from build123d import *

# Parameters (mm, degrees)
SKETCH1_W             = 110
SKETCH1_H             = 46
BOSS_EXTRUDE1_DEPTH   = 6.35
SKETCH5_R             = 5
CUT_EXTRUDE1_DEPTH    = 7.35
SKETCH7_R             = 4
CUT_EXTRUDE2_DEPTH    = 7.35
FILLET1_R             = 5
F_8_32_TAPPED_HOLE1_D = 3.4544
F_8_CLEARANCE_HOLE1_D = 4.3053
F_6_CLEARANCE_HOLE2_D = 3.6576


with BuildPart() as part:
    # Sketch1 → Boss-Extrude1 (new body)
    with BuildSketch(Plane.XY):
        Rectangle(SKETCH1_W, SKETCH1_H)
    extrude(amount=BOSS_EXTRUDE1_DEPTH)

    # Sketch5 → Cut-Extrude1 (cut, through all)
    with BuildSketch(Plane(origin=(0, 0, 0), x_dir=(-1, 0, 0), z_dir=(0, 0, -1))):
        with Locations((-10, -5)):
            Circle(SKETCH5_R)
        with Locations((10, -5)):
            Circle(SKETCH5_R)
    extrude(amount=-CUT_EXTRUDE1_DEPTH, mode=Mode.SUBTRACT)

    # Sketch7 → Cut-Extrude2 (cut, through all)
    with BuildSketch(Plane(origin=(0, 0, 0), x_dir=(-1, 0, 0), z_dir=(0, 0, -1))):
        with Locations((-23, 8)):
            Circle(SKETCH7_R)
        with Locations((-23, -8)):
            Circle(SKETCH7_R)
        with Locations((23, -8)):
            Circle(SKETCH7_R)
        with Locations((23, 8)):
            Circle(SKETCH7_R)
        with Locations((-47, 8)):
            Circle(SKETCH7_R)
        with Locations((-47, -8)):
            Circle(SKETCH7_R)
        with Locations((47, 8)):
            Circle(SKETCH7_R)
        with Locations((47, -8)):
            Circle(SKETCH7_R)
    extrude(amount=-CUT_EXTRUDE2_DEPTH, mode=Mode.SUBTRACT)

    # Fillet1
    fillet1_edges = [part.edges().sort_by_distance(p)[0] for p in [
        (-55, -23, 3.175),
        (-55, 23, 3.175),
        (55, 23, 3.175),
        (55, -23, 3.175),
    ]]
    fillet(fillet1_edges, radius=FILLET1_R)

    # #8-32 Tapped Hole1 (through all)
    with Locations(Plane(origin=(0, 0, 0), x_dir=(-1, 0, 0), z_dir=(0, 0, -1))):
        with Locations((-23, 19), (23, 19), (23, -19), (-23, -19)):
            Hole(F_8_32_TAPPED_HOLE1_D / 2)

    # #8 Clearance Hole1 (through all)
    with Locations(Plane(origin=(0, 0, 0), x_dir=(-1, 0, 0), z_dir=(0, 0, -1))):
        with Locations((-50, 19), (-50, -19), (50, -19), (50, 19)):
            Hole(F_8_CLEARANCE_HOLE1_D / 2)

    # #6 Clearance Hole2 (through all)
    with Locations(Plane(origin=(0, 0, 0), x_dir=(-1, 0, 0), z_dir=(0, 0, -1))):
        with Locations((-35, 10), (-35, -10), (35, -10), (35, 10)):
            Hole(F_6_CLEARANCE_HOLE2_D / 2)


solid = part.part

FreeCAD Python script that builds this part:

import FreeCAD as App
import Part
import Sketcher
Q = App.Units.Quantity


def edges_at(feature, points):
    """Names of the edges that pass closest to the given points."""
    edges = feature.Shape.Edges
    near = lambda p: min(range(len(edges)), key=lambda i: edges[i].distToShape(Part.Vertex(*p))[0])
    return sorted({f"Edge{near(p) + 1}" for p in points})


def add_polygon(sketch, points):
    """Adds a closed chain of lines whose ends are joined by coincident constraints."""
    first, n = sketch.GeometryCount, len(points)
    for a, b in zip(points, points[1:] + points[:1]):
        sketch.addGeometry(Part.LineSegment(App.Vector(*a, 0), App.Vector(*b, 0)), False)
    for i in range(n):
        sketch.addConstraint(Sketcher.Constraint("Coincident", first + i, 2, first + (i + 1) % n, 1))

doc = App.newDocument("Part")
params = doc.addObject("Spreadsheet::Sheet", "Params")
for row, (alias, value) in enumerate([
    ("sketch1_width", "110 mm"),
    ("sketch1_height", "46 mm"),
    ("pad1_length", "6.35 mm"),
    ("sketch2_diameter", "10 mm"),
    ("sketch3_diameter", "8 mm"),
    ("fillet_radius", "5 mm"),
    ("hole_diameter", "3.4544 mm"),
    ("hole2_diameter", "4.3053 mm"),
    ("hole3_diameter", "3.6576 mm"),
], start=1):
    params.set(f"A{row}", alias)
    params.set(f"B{row}", "=" + value)
    params.setAlias(f"B{row}", alias)

body = doc.addObject("PartDesign::Body", "Body")

sketch1 = body.newObject("Sketcher::SketchObject", "Sketch")
sketch1.AttachmentSupport = (doc.getObject("XY_Plane"), [""])
sketch1.MapMode = "FlatFace"
add_polygon(sketch1, [(-55, 23), (-55, -23), (55, -23), (55, 23)])
sketch1.addConstraint([
    Sketcher.Constraint("Vertical", 0),
    Sketcher.Constraint("Horizontal", 1),
    Sketcher.Constraint("Vertical", 2),
    Sketcher.Constraint("Horizontal", 3),
    Sketcher.Constraint("Symmetric", 0, 2, 2, 2, -1, 1),
    Sketcher.Constraint("DistanceX", 1, 1, 1, 2, Q("110 mm")),
    Sketcher.Constraint("DistanceY", 0, 2, 0, 1, Q("46 mm")),
])
sketch1.setExpression("Constraints[9]", "Params.sketch1_width")
sketch1.setExpression("Constraints[10]", "Params.sketch1_height")
pad1 = body.newObject("PartDesign::Pad", "Pad")
pad1.Profile = sketch1
pad1.setExpression("Length", "Params.pad1_length")

sketch2 = body.newObject("Sketcher::SketchObject", "Sketch001")
sketch2.AttachmentSupport = (doc.getObject("XY_Plane"), [""])
sketch2.MapMode = "FlatFace"
sketch2.addGeometry([
    Part.Circle(App.Vector(10, -5, 0), App.Vector(0, 0, 1), 5),
    Part.Circle(App.Vector(-10, -5, 0), App.Vector(0, 0, 1), 5),
], False)
sketch2.addConstraint([
    Sketcher.Constraint("Equal", 0, 1),
    Sketcher.Constraint("Symmetric", 0, 3, 1, 3, -2),
    Sketcher.Constraint("Diameter", 0, Q("10 mm")),
    Sketcher.Constraint("DistanceX", -1, 1, 0, 3, Q("10 mm")),
    Sketcher.Constraint("DistanceY", 0, 3, -1, 1, Q("5 mm")),
])
sketch2.setExpression("Constraints[2]", "Params.sketch2_diameter")
pocket1 = body.newObject("PartDesign::Pocket", "Pocket")
pocket1.Profile = sketch2
pocket1.Type = "ThroughAll"
pocket1.Reversed = True

sketch3 = body.newObject("Sketcher::SketchObject", "Sketch002")
sketch3.AttachmentSupport = (doc.getObject("XY_Plane"), [""])
sketch3.MapMode = "FlatFace"
sketch3.addGeometry([
    Part.Circle(App.Vector(23, 8, 0), App.Vector(0, 0, 1), 4),
    Part.Circle(App.Vector(23, -8, 0), App.Vector(0, 0, 1), 4),
    Part.Circle(App.Vector(-23, -8, 0), App.Vector(0, 0, 1), 4),
    Part.Circle(App.Vector(-23, 8, 0), App.Vector(0, 0, 1), 4),
    Part.Circle(App.Vector(47, 8, 0), App.Vector(0, 0, 1), 4),
    Part.Circle(App.Vector(47, -8, 0), App.Vector(0, 0, 1), 4),
    Part.Circle(App.Vector(-47, 8, 0), App.Vector(0, 0, 1), 4),
    Part.Circle(App.Vector(-47, -8, 0), App.Vector(0, 0, 1), 4),
], False)
sketch3.addConstraint([
    Sketcher.Constraint("Equal", 0, 1),
    Sketcher.Constraint("Equal", 1, 2),
    Sketcher.Constraint("Equal", 2, 3),
    Sketcher.Constraint("Equal", 3, 4),
    Sketcher.Constraint("Equal", 4, 5),
    Sketcher.Constraint("Equal", 5, 6),
    Sketcher.Constraint("Equal", 6, 7),
    Sketcher.Constraint("Symmetric", 0, 3, 2, 3, -1, 1),
    Sketcher.Constraint("Symmetric", 1, 3, 3, 3, -1, 1),
    Sketcher.Constraint("Symmetric", 5, 3, 6, 3, -1, 1),
    Sketcher.Constraint("Symmetric", 4, 3, 7, 3, -1, 1),
    Sketcher.Constraint("Symmetric", 1, 3, 2, 3, -2),
    Sketcher.Constraint("Symmetric", 4, 3, 6, 3, -2),
    Sketcher.Constraint("Horizontal", 3, 3, 4, 3),
    Sketcher.Constraint("Diameter", 0, Q("8 mm")),
    Sketcher.Constraint("DistanceX", -1, 1, 0, 3, Q("23 mm")),
    Sketcher.Constraint("DistanceY", -1, 1, 0, 3, Q("8 mm")),
    Sketcher.Constraint("DistanceX", -1, 1, 4, 3, Q("47 mm")),
])
sketch3.setExpression("Constraints[14]", "Params.sketch3_diameter")
pocket2 = body.newObject("PartDesign::Pocket", "Pocket001")
pocket2.Profile = sketch3
pocket2.Type = "ThroughAll"
pocket2.Reversed = True
doc.recompute()

fillet = body.newObject("PartDesign::Fillet", "Fillet")
fillet.Base = (pocket2, edges_at(pocket2, [
    (-55, -23, 3.175),
    (-55, 23, 3.175),
    (55, 23, 3.175),
    (55, -23, 3.175),
]))
fillet.setExpression("Radius", "Params.fillet_radius")

sketch4 = body.newObject("Sketcher::SketchObject", "Sketch003")
sketch4.AttachmentSupport = (doc.getObject("XY_Plane"), [""])
sketch4.MapMode = "FlatFace"
sketch4.addGeometry([
    Part.Circle(App.Vector(23, 19, 0), App.Vector(0, 0, 1), 1.7),
    Part.Circle(App.Vector(-23, 19, 0), App.Vector(0, 0, 1), 1.7),
    Part.Circle(App.Vector(-23, -19, 0), App.Vector(0, 0, 1), 1.7),
    Part.Circle(App.Vector(23, -19, 0), App.Vector(0, 0, 1), 1.7),
], False)
sketch4.addConstraint([
    Sketcher.Constraint("Equal", 0, 1),
    Sketcher.Constraint("Equal", 1, 2),
    Sketcher.Constraint("Equal", 2, 3),
    Sketcher.Constraint("Symmetric", 0, 3, 2, 3, -1, 1),
    Sketcher.Constraint("Symmetric", 1, 3, 3, 3, -1, 1),
    Sketcher.Constraint("Symmetric", 0, 3, 1, 3, -2),
    Sketcher.Constraint("DistanceX", -1, 1, 0, 3, Q("23 mm")),
    Sketcher.Constraint("DistanceY", -1, 1, 0, 3, Q("19 mm")),
    Sketcher.Constraint("Diameter", 0, Q("3.4544 mm")),
])
doc.recompute()
hole = body.newObject("PartDesign::Hole", "Hole")
hole.Profile = sketch4
hole.ThreadType = "None"
hole.setExpression("Diameter", "Params.hole_diameter")
hole.DepthType = "ThroughAll"
hole.Reversed = True

sketch5 = body.newObject("Sketcher::SketchObject", "Sketch004")
sketch5.AttachmentSupport = (doc.getObject("XY_Plane"), [""])
sketch5.MapMode = "FlatFace"
sketch5.addGeometry([
    Part.Circle(App.Vector(50, 19, 0), App.Vector(0, 0, 1), 2.2),
    Part.Circle(App.Vector(50, -19, 0), App.Vector(0, 0, 1), 2.2),
    Part.Circle(App.Vector(-50, -19, 0), App.Vector(0, 0, 1), 2.2),
    Part.Circle(App.Vector(-50, 19, 0), App.Vector(0, 0, 1), 2.2),
], False)
sketch5.addConstraint([
    Sketcher.Constraint("Equal", 0, 1),
    Sketcher.Constraint("Equal", 1, 2),
    Sketcher.Constraint("Equal", 2, 3),
    Sketcher.Constraint("Symmetric", 0, 3, 2, 3, -1, 1),
    Sketcher.Constraint("Symmetric", 1, 3, 3, 3, -1, 1),
    Sketcher.Constraint("Symmetric", 1, 3, 2, 3, -2),
    Sketcher.Constraint("DistanceX", -1, 1, 0, 3, Q("50 mm")),
    Sketcher.Constraint("DistanceY", -1, 1, 0, 3, Q("19 mm")),
    Sketcher.Constraint("Diameter", 0, Q("4.3053 mm")),
])
doc.recompute()
hole2 = body.newObject("PartDesign::Hole", "Hole001")
hole2.Profile = sketch5
hole2.ThreadType = "None"
hole2.setExpression("Diameter", "Params.hole2_diameter")
hole2.DepthType = "ThroughAll"
hole2.Reversed = True

sketch6 = body.newObject("Sketcher::SketchObject", "Sketch005")
sketch6.AttachmentSupport = (doc.getObject("XY_Plane"), [""])
sketch6.MapMode = "FlatFace"
sketch6.addGeometry([
    Part.Circle(App.Vector(35, 10, 0), App.Vector(0, 0, 1), 1.8),
    Part.Circle(App.Vector(35, -10, 0), App.Vector(0, 0, 1), 1.8),
    Part.Circle(App.Vector(-35, -10, 0), App.Vector(0, 0, 1), 1.8),
    Part.Circle(App.Vector(-35, 10, 0), App.Vector(0, 0, 1), 1.8),
], False)
sketch6.addConstraint([
    Sketcher.Constraint("Equal", 0, 1),
    Sketcher.Constraint("Equal", 1, 2),
    Sketcher.Constraint("Equal", 2, 3),
    Sketcher.Constraint("Symmetric", 0, 3, 2, 3, -1, 1),
    Sketcher.Constraint("Symmetric", 1, 3, 3, 3, -1, 1),
    Sketcher.Constraint("Symmetric", 1, 3, 2, 3, -2),
    Sketcher.Constraint("DistanceX", -1, 1, 0, 3, Q("35 mm")),
    Sketcher.Constraint("DistanceY", -1, 1, 0, 3, Q("10 mm")),
    Sketcher.Constraint("Diameter", 0, Q("3.6576 mm")),
])
doc.recompute()
hole3 = body.newObject("PartDesign::Hole", "Hole002")
hole3.Profile = sketch6
hole3.ThreadType = "None"
hole3.setExpression("Diameter", "Params.hole3_diameter")
hole3.DepthType = "ThroughAll"
hole3.Reversed = True

doc.recompute()
